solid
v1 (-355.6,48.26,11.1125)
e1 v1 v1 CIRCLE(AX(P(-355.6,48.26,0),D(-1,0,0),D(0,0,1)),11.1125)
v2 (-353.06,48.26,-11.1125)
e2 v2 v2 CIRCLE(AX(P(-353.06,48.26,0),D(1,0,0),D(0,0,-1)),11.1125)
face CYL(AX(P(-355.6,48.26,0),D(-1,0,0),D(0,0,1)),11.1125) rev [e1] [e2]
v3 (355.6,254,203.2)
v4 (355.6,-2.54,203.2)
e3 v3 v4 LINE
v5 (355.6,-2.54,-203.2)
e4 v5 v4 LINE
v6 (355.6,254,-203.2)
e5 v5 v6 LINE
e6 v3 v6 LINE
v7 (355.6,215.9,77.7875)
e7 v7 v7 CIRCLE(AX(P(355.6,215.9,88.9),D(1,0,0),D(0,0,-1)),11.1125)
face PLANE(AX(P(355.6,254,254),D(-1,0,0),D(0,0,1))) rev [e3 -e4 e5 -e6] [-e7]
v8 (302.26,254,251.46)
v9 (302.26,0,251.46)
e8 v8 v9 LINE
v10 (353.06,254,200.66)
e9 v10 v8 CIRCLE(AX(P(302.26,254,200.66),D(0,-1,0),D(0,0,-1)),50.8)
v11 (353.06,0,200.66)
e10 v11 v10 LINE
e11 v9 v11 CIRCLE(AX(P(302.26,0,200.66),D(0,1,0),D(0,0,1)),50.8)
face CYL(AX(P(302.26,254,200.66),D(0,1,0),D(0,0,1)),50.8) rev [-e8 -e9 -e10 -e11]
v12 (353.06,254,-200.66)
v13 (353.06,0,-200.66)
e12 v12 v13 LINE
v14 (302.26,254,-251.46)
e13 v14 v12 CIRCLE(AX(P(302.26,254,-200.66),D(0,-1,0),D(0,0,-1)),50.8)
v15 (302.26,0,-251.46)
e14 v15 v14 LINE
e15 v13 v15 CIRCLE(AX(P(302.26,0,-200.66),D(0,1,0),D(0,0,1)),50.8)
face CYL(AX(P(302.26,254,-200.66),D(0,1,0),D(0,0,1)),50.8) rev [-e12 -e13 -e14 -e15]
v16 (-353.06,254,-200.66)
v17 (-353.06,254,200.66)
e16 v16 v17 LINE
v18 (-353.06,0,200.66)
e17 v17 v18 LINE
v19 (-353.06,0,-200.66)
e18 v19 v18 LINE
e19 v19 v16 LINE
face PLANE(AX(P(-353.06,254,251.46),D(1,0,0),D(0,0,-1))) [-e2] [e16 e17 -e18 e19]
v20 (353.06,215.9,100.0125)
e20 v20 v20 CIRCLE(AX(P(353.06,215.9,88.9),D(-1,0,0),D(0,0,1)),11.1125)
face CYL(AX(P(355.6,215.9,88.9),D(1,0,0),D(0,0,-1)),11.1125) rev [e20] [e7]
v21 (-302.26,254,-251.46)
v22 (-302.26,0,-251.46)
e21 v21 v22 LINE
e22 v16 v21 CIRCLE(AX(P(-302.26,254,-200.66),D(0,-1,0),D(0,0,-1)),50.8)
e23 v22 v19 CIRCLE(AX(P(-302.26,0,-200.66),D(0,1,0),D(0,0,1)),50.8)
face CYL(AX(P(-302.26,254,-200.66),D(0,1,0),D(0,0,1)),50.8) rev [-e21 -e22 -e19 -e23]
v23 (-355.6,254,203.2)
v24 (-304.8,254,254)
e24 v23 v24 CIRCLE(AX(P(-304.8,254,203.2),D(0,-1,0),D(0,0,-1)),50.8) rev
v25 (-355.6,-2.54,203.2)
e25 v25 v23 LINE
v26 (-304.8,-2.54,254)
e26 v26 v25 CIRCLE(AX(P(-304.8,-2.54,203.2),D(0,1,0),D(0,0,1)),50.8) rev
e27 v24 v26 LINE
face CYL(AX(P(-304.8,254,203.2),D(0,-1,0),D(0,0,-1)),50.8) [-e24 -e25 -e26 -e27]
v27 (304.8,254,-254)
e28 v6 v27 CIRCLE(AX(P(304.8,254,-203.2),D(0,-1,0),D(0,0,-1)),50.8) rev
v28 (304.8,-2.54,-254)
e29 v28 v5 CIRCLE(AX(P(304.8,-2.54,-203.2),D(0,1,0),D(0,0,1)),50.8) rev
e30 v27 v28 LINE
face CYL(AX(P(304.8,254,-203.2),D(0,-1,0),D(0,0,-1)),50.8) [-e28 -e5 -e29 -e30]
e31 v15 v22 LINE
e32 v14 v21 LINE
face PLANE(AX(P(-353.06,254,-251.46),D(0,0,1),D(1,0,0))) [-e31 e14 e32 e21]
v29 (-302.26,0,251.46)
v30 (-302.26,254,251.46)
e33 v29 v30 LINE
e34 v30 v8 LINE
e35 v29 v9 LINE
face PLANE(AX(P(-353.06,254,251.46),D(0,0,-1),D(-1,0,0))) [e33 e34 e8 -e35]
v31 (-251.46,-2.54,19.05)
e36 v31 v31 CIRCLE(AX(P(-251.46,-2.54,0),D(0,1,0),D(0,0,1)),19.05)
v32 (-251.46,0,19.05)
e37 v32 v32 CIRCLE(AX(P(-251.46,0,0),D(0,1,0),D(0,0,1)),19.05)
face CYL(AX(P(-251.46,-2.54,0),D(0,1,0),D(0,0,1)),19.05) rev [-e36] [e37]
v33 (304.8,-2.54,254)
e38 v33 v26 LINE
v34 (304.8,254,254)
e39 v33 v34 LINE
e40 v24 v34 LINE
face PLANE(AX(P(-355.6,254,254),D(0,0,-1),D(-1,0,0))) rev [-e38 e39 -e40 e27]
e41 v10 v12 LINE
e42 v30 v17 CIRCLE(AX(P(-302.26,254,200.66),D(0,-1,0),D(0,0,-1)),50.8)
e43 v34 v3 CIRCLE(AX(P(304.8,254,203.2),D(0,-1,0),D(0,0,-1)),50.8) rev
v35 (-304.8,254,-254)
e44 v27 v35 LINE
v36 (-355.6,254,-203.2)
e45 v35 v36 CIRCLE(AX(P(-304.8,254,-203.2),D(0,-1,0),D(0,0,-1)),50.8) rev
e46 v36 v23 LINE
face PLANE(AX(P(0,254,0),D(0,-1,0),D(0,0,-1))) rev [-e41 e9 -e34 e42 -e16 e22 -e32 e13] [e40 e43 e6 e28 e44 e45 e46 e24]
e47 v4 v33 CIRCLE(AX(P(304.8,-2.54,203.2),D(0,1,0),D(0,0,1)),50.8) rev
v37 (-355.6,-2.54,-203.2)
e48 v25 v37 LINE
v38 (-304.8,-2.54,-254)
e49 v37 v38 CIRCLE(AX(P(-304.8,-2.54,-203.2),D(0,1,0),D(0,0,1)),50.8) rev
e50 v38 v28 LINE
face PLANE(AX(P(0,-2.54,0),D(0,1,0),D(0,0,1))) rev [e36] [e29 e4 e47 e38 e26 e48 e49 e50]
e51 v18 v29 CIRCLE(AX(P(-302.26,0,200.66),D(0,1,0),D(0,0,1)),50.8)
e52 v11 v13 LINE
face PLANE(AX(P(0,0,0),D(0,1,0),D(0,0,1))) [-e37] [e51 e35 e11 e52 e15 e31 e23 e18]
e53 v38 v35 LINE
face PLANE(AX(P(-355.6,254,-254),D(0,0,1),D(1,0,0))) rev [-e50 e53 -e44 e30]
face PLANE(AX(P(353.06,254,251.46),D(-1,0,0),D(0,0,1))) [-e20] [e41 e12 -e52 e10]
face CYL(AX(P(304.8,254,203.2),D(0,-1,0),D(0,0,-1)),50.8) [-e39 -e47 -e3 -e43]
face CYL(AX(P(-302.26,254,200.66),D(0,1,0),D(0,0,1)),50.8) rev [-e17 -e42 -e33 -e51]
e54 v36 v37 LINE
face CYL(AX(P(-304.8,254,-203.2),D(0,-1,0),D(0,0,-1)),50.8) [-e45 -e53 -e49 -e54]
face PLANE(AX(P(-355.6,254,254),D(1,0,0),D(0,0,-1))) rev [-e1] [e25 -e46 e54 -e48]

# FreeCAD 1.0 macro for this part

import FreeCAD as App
import Part
import Sketcher
from FreeCAD import Vector
Q = App.Units.Quantity


def edges_at(feature, points):
    """Names of the edges that pass closest to the given points."""
    edges = feature.Shape.Edges
    near = lambda p: min(range(len(edges)), key=lambda i: edges[i].distToShape(Part.Vertex(*p))[0])
    return sorted({f"Edge{near(p) + 1}" for p in points})


def add_polygon(sketch, points):
    """Adds a closed chain of lines whose ends are joined by coincident constraints."""
    first, n = sketch.GeometryCount, len(points)
    for a, b in zip(points, points[1:] + points[:1]):
        sketch.addGeometry(Part.LineSegment(App.Vector(*a, 0), App.Vector(*b, 0)), False)
    for i in range(n):
        sketch.addConstraint(Sketcher.Constraint("Coincident", first + i, 2, first + (i + 1) % n, 1))

doc = App.newDocument("Part")
body = doc.addObject("PartDesign::Body", "Body")

sketch1 = doc.addObject("Sketcher::SketchObject", "Sketch")
body.addObject(sketch1)
sketch1.AttachmentSupport = (doc.XZ_Plane, [""])
sketch1.MapMode = "FlatFace"
add_polygon(sketch1, [(-355.6, -254), (-355.6, 254), (355.6, 254), (355.6, -254)])
add_polygon(sketch1, [(353.06, 251.46), (-353.06, 251.46), (-353.06, -251.46), (353.06, -251.46)])
sketch1.addConstraint([
    Sketcher.Constraint("Vertical", 0),
    Sketcher.Constraint("Horizontal", 1),
    Sketcher.Constraint("Vertical", 2),
    Sketcher.Constraint("Horizontal", 3),
    Sketcher.Constraint("Horizontal", 4),
    Sketcher.Constraint("Vertical", 5),
    Sketcher.Constraint("Horizontal", 6),
    Sketcher.Constraint("Vertical", 7),
    Sketcher.Constraint("Symmetric", 0, 2, 2, 2, -1, 1),
    Sketcher.Constraint("Symmetric", 4, 2, 6, 2, -1, 1),
    Sketcher.Constraint("DistanceX", 1, 1, 1, 2, Q("28 in")),
    Sketcher.Constraint("DistanceY", 0, 1, 0, 2, Q("20 in")),
    Sketcher.Constraint("DistanceX", 4, 2, 4, 1, Q("27.8 in")),
    Sketcher.Constraint("DistanceY", 5, 2, 5, 1, Q("19.8 in")),
])
pad1 = doc.addObject("PartDesign::Pad", "Pad")
body.addObject(pad1)
pad1.Profile = sketch1
pad1.Length = Q("10 in")
pad1.Reversed = True

sketch2 = doc.addObject("Sketcher::SketchObject", "Sketch001")
body.addObject(sketch2)
sketch2.AttachmentSupport = (doc.XZ_Plane, [""])
sketch2.MapMode = "FlatFace"
add_polygon(sketch2, [(-355.6, 254), (-355.6, -254), (355.6, -254), (355.6, 254)])
sketch2.addConstraint([
    Sketcher.Constraint("Vertical", 0),
    Sketcher.Constraint("Horizontal", 1),
    Sketcher.Constraint("Vertical", 2),
    Sketcher.Constraint("Horizontal", 3),
    Sketcher.Constraint("Symmetric", 0, 2, 2, 2, -1, 1),
    Sketcher.Constraint("DistanceX", 1, 1, 1, 2, Q("28 in")),
    Sketcher.Constraint("DistanceY", 0, 2, 0, 1, Q("20 in")),
])
pad2 = doc.addObject("PartDesign::Pad", "Pad001")
body.addObject(pad2)
pad2.Profile = sketch2
pad2.Length = Q("0.1 in")
doc.recompute()

fillet = doc.addObject("PartDesign::Fillet", "Fillet")
body.addObject(fillet)
fillet.Base = (pad2, edges_at(pad2, [
    (353.06, 127, 251.46),
    (353.06, 127, -251.46),
    (-353.06, 127, -251.46),
    (-353.06, 127, 251.46),
    (355.6, 125.73, 254),
    (-355.6, 125.73, 254),
    (-355.6, 125.73, -254),
    (355.6, 125.73, -254),
]))
fillet.Radius = Q("2 in")

sketch3 = doc.addObject("Sketcher::SketchObject", "Sketch002")
body.addObject(sketch3)
sketch3.AttachmentSupport = (doc.XZ_Plane, [""])
sketch3.MapMode = "FlatFace"
sketch3.addGeometry(Part.Circle(Vector(-251.46, 0, 0), Vector(0, 0, 1), 19.05), False)
sketch3.addConstraint([
    Sketcher.Constraint("PointOnObject", 0, 3, -1),
    Sketcher.Constraint("Diameter", 0, Q("1.5 in")),
    Sketcher.Constraint("DistanceX", 0, 3, -1, 1, Q("9.9 in")),
])
pocket1 = doc.addObject("PartDesign::Pocket", "Pocket")
body.addObject(pocket1)
pocket1.Profile = sketch3
pocket1.Length = Q("0.1 in")
pocket1.Reversed = True

sketch4 = doc.addObject("Sketcher::SketchObject", "Sketch003")
body.addObject(sketch4)
sketch4.AttachmentSupport = (doc.YZ_Plane, [""])
sketch4.MapMode = "FlatFace"
sketch4.AttachmentOffset = App.Placement(Vector(0, 0, -14 * 25.4), App.Rotation())
sketch4.addGeometry(Part.Circle(Vector(48.26, 0, 0), Vector(0, 0, 1), 11.1125), False)
sketch4.addConstraint([
    Sketcher.Constraint("PointOnObject", 0, 3, -1),
    Sketcher.Constraint("Diameter", 0, Q("0.875 in")),
    Sketcher.Constraint("DistanceX", -1, 1, 0, 3, Q("1.9 in")),
])
doc.recompute()
hole = doc.addObject("PartDesign::Hole", "Hole")
body.addObject(hole)
hole.Profile = sketch4
hole.ThreadType = "None"
hole.Diameter = Q("0.875 in")
hole.DepthType = "Dimension"
hole.Depth = Q("0.1 in")
hole.DrillPoint = "Flat"
hole.Reversed = True

sketch5 = doc.addObject("Sketcher::SketchObject", "Sketch004")
body.addObject(sketch5)
sketch5.AttachmentSupport = (doc.YZ_Plane, [""])
sketch5.MapMode = "FlatFace"
sketch5.AttachmentOffset = App.Placement(Vector(0, 0, 14 * 25.4), App.Rotation())
sketch5.addGeometry(Part.Circle(Vector(215.9, 88.9, 0), Vector(0, 0, 1), 11.1125), False)
sketch5.addConstraint([
    Sketcher.Constraint("Diameter", 0, Q("0.875 in")),
    Sketcher.Constraint("DistanceX", -1, 1, 0, 3, Q("8.5 in")),
    Sketcher.Constraint("DistanceY", -1, 1, 0, 3, Q("3.5 in")),
])
doc.recompute()
hole2 = doc.addObject("PartDesign::Hole", "Hole001")
body.addObject(hole2)
hole2.Profile = sketch5
hole2.ThreadType = "None"
hole2.Diameter = Q("0.875 in")
hole2.DepthType = "Dimension"
hole2.Depth = Q("0.1 in")
hole2.DrillPoint = "Flat"

doc.recompute()
